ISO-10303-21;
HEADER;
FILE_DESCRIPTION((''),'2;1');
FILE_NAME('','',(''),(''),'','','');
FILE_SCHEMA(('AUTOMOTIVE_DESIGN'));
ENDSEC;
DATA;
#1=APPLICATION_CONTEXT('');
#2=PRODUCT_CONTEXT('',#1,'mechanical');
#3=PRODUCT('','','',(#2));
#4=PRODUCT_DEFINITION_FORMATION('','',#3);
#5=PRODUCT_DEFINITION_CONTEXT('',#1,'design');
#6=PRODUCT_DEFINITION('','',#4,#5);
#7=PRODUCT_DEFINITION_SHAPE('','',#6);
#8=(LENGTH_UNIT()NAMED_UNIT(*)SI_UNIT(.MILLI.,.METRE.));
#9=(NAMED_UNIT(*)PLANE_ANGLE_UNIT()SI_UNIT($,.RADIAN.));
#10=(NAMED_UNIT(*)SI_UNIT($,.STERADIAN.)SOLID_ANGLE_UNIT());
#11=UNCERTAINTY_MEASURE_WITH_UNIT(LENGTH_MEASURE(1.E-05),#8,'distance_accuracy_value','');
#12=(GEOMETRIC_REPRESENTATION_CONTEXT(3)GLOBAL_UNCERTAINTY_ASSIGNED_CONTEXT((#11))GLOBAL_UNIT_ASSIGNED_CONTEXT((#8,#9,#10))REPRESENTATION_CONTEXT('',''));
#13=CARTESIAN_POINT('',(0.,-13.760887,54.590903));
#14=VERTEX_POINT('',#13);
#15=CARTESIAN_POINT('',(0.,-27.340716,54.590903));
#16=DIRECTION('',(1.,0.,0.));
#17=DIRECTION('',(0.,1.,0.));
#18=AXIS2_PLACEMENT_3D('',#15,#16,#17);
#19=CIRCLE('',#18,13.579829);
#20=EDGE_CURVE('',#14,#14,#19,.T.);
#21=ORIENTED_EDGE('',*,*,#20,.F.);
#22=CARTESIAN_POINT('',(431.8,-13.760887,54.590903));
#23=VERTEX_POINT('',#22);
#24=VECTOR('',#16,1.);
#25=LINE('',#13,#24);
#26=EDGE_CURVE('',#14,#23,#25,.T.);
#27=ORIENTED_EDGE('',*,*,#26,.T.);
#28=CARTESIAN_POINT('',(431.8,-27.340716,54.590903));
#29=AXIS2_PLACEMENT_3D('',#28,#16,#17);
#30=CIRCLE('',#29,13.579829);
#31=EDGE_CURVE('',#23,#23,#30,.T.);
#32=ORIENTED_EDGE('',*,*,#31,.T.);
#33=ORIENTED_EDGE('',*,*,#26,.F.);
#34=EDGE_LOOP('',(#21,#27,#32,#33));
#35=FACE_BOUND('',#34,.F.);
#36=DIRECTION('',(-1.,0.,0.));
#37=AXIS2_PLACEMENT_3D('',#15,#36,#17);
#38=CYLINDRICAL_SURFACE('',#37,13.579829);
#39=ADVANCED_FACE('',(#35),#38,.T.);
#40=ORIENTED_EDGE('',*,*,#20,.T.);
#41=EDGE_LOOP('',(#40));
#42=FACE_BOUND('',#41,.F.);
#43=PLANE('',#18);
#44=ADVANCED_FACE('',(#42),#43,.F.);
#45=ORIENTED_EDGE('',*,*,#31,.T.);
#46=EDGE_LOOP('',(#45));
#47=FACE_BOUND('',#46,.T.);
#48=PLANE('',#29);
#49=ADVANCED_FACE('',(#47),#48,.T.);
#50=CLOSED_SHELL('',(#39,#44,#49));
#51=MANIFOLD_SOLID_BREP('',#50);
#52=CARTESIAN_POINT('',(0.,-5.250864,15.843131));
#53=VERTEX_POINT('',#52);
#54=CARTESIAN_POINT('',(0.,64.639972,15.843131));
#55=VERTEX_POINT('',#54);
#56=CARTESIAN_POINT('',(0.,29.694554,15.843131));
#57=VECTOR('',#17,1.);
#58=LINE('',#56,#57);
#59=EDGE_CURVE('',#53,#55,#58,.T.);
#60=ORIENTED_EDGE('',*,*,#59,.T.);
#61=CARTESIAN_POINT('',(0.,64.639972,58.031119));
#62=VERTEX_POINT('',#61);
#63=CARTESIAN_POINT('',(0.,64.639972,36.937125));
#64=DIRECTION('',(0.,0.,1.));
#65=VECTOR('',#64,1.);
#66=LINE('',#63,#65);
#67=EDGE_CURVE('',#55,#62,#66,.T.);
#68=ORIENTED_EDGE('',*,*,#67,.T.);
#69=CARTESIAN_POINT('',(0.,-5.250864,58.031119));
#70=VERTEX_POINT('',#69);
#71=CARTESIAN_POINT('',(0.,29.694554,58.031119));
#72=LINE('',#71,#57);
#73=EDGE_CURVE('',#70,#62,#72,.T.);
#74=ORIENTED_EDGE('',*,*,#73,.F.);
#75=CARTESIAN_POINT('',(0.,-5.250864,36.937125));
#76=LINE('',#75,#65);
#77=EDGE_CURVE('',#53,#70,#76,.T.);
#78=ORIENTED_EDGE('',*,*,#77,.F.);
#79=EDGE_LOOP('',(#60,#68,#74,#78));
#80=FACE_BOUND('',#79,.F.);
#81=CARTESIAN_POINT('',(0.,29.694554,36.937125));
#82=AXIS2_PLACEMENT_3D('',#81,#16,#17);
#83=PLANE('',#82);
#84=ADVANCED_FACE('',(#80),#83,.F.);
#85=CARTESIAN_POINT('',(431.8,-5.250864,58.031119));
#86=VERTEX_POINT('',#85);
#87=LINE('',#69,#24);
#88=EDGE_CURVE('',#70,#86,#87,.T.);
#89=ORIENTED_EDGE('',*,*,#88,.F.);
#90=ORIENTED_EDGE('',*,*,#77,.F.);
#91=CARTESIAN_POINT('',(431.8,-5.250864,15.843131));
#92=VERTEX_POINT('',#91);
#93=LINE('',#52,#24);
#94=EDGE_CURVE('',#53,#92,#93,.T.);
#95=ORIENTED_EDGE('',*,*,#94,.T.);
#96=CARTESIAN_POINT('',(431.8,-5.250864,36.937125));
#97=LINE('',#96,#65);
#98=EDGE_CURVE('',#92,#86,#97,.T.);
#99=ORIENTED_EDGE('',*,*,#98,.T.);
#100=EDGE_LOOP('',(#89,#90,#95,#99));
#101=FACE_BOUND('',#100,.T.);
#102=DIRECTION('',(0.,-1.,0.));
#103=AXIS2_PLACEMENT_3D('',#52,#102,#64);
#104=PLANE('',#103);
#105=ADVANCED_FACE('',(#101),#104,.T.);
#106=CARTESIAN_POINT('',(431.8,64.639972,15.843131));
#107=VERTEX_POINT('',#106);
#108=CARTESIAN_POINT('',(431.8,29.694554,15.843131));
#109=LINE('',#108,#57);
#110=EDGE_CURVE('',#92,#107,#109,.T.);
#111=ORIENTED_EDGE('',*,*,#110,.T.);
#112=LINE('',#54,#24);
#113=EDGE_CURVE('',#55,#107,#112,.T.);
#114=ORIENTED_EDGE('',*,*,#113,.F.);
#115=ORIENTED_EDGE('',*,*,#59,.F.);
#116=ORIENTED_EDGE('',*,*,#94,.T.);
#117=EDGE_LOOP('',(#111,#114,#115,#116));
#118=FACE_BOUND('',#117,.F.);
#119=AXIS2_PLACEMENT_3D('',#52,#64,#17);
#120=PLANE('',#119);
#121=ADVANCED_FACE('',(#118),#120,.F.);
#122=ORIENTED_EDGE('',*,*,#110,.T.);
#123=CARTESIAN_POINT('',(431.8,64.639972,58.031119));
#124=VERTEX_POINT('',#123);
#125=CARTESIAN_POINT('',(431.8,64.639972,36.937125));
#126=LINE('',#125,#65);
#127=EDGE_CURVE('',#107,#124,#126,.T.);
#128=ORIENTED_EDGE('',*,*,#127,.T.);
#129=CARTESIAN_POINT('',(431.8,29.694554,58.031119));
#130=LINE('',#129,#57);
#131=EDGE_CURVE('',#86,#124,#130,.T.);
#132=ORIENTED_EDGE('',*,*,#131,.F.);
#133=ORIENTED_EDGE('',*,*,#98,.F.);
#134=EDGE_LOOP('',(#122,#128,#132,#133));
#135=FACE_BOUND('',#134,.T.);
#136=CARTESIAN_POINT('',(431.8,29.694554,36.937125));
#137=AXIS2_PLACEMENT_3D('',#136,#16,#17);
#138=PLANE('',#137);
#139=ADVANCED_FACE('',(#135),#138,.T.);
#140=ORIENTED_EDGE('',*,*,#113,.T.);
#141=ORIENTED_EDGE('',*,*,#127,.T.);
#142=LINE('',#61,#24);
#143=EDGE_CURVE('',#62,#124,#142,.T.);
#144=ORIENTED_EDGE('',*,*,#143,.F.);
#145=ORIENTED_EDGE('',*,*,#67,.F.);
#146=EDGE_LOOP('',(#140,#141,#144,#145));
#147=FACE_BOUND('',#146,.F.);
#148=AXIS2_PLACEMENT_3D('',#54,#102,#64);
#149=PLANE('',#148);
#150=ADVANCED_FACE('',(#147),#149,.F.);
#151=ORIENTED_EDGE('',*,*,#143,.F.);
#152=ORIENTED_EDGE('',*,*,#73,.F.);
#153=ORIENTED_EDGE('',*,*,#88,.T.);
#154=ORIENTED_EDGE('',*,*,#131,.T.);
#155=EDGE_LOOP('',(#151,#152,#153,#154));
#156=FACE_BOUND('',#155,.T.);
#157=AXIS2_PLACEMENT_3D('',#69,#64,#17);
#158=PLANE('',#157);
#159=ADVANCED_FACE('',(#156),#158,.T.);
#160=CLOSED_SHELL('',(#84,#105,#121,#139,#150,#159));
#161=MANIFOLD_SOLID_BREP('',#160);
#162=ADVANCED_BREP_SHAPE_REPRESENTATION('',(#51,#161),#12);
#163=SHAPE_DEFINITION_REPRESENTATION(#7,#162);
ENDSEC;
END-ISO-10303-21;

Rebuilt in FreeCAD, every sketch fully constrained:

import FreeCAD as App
import Part
import Sketcher

V = App.Vector
Q = App.Units.Quantity


def add_polygon(sketch, points):
    """Adds a closed chain of lines whose ends are joined by coincident constraints."""
    first, n = sketch.GeometryCount, len(points)
    for a, b in zip(points, points[1:] + points[:1]):
        sketch.addGeometry(Part.LineSegment(App.Vector(*a, 0), App.Vector(*b, 0)), False)
    for i in range(n):
        sketch.addConstraint(Sketcher.Constraint("Coincident", first + i, 2, first + (i + 1) % n, 1))

doc = App.newDocument("Part")
body = doc.addObject("PartDesign::Body", "Body")
body.AllowCompound = True

sketch1 = body.newObject("Sketcher::SketchObject", "Sketch")
sketch1.AttachmentSupport = (doc.getObject("YZ_Plane"), [""])
sketch1.MapMode = "FlatFace"
add_polygon(sketch1, [(-5.250864, 58.031119), (-5.250864, 15.843131), (64.639972, 15.843131), (64.639972, 58.031119)])
sketch1.addGeometry(Part.Circle(V(-27.340716, 54.590903, 0), V(0, 0, 1), 13.579829), False)
sketch1.addConstraint([
    Sketcher.Constraint("Vertical", 0),
    Sketcher.Constraint("Horizontal", 1),
    Sketcher.Constraint("Vertical", 2),
    Sketcher.Constraint("Horizontal", 3),
    Sketcher.Constraint("Diameter", 4, 27.159658),
    Sketcher.Constraint("DistanceX", 1, 1, 1, 2, 69.890835),
    Sketcher.Constraint("DistanceY", 0, 2, 0, 1, 42.187988),
    Sketcher.Constraint("DistanceY", -1, 1, 0, 2, 15.843131),
    Sketcher.Constraint("DistanceX", -1, 1, 1, 2, 64.639972),
    Sketcher.Constraint("DistanceY", 0, 2, 4, 3, 38.747772),
    Sketcher.Constraint("DistanceX", 4, 3, -1, 1, 27.340716),
])
pad1 = body.newObject("PartDesign::Pad", "Pad")
pad1.Profile = sketch1
pad1.Length = Q("17 in")

doc.recompute()
